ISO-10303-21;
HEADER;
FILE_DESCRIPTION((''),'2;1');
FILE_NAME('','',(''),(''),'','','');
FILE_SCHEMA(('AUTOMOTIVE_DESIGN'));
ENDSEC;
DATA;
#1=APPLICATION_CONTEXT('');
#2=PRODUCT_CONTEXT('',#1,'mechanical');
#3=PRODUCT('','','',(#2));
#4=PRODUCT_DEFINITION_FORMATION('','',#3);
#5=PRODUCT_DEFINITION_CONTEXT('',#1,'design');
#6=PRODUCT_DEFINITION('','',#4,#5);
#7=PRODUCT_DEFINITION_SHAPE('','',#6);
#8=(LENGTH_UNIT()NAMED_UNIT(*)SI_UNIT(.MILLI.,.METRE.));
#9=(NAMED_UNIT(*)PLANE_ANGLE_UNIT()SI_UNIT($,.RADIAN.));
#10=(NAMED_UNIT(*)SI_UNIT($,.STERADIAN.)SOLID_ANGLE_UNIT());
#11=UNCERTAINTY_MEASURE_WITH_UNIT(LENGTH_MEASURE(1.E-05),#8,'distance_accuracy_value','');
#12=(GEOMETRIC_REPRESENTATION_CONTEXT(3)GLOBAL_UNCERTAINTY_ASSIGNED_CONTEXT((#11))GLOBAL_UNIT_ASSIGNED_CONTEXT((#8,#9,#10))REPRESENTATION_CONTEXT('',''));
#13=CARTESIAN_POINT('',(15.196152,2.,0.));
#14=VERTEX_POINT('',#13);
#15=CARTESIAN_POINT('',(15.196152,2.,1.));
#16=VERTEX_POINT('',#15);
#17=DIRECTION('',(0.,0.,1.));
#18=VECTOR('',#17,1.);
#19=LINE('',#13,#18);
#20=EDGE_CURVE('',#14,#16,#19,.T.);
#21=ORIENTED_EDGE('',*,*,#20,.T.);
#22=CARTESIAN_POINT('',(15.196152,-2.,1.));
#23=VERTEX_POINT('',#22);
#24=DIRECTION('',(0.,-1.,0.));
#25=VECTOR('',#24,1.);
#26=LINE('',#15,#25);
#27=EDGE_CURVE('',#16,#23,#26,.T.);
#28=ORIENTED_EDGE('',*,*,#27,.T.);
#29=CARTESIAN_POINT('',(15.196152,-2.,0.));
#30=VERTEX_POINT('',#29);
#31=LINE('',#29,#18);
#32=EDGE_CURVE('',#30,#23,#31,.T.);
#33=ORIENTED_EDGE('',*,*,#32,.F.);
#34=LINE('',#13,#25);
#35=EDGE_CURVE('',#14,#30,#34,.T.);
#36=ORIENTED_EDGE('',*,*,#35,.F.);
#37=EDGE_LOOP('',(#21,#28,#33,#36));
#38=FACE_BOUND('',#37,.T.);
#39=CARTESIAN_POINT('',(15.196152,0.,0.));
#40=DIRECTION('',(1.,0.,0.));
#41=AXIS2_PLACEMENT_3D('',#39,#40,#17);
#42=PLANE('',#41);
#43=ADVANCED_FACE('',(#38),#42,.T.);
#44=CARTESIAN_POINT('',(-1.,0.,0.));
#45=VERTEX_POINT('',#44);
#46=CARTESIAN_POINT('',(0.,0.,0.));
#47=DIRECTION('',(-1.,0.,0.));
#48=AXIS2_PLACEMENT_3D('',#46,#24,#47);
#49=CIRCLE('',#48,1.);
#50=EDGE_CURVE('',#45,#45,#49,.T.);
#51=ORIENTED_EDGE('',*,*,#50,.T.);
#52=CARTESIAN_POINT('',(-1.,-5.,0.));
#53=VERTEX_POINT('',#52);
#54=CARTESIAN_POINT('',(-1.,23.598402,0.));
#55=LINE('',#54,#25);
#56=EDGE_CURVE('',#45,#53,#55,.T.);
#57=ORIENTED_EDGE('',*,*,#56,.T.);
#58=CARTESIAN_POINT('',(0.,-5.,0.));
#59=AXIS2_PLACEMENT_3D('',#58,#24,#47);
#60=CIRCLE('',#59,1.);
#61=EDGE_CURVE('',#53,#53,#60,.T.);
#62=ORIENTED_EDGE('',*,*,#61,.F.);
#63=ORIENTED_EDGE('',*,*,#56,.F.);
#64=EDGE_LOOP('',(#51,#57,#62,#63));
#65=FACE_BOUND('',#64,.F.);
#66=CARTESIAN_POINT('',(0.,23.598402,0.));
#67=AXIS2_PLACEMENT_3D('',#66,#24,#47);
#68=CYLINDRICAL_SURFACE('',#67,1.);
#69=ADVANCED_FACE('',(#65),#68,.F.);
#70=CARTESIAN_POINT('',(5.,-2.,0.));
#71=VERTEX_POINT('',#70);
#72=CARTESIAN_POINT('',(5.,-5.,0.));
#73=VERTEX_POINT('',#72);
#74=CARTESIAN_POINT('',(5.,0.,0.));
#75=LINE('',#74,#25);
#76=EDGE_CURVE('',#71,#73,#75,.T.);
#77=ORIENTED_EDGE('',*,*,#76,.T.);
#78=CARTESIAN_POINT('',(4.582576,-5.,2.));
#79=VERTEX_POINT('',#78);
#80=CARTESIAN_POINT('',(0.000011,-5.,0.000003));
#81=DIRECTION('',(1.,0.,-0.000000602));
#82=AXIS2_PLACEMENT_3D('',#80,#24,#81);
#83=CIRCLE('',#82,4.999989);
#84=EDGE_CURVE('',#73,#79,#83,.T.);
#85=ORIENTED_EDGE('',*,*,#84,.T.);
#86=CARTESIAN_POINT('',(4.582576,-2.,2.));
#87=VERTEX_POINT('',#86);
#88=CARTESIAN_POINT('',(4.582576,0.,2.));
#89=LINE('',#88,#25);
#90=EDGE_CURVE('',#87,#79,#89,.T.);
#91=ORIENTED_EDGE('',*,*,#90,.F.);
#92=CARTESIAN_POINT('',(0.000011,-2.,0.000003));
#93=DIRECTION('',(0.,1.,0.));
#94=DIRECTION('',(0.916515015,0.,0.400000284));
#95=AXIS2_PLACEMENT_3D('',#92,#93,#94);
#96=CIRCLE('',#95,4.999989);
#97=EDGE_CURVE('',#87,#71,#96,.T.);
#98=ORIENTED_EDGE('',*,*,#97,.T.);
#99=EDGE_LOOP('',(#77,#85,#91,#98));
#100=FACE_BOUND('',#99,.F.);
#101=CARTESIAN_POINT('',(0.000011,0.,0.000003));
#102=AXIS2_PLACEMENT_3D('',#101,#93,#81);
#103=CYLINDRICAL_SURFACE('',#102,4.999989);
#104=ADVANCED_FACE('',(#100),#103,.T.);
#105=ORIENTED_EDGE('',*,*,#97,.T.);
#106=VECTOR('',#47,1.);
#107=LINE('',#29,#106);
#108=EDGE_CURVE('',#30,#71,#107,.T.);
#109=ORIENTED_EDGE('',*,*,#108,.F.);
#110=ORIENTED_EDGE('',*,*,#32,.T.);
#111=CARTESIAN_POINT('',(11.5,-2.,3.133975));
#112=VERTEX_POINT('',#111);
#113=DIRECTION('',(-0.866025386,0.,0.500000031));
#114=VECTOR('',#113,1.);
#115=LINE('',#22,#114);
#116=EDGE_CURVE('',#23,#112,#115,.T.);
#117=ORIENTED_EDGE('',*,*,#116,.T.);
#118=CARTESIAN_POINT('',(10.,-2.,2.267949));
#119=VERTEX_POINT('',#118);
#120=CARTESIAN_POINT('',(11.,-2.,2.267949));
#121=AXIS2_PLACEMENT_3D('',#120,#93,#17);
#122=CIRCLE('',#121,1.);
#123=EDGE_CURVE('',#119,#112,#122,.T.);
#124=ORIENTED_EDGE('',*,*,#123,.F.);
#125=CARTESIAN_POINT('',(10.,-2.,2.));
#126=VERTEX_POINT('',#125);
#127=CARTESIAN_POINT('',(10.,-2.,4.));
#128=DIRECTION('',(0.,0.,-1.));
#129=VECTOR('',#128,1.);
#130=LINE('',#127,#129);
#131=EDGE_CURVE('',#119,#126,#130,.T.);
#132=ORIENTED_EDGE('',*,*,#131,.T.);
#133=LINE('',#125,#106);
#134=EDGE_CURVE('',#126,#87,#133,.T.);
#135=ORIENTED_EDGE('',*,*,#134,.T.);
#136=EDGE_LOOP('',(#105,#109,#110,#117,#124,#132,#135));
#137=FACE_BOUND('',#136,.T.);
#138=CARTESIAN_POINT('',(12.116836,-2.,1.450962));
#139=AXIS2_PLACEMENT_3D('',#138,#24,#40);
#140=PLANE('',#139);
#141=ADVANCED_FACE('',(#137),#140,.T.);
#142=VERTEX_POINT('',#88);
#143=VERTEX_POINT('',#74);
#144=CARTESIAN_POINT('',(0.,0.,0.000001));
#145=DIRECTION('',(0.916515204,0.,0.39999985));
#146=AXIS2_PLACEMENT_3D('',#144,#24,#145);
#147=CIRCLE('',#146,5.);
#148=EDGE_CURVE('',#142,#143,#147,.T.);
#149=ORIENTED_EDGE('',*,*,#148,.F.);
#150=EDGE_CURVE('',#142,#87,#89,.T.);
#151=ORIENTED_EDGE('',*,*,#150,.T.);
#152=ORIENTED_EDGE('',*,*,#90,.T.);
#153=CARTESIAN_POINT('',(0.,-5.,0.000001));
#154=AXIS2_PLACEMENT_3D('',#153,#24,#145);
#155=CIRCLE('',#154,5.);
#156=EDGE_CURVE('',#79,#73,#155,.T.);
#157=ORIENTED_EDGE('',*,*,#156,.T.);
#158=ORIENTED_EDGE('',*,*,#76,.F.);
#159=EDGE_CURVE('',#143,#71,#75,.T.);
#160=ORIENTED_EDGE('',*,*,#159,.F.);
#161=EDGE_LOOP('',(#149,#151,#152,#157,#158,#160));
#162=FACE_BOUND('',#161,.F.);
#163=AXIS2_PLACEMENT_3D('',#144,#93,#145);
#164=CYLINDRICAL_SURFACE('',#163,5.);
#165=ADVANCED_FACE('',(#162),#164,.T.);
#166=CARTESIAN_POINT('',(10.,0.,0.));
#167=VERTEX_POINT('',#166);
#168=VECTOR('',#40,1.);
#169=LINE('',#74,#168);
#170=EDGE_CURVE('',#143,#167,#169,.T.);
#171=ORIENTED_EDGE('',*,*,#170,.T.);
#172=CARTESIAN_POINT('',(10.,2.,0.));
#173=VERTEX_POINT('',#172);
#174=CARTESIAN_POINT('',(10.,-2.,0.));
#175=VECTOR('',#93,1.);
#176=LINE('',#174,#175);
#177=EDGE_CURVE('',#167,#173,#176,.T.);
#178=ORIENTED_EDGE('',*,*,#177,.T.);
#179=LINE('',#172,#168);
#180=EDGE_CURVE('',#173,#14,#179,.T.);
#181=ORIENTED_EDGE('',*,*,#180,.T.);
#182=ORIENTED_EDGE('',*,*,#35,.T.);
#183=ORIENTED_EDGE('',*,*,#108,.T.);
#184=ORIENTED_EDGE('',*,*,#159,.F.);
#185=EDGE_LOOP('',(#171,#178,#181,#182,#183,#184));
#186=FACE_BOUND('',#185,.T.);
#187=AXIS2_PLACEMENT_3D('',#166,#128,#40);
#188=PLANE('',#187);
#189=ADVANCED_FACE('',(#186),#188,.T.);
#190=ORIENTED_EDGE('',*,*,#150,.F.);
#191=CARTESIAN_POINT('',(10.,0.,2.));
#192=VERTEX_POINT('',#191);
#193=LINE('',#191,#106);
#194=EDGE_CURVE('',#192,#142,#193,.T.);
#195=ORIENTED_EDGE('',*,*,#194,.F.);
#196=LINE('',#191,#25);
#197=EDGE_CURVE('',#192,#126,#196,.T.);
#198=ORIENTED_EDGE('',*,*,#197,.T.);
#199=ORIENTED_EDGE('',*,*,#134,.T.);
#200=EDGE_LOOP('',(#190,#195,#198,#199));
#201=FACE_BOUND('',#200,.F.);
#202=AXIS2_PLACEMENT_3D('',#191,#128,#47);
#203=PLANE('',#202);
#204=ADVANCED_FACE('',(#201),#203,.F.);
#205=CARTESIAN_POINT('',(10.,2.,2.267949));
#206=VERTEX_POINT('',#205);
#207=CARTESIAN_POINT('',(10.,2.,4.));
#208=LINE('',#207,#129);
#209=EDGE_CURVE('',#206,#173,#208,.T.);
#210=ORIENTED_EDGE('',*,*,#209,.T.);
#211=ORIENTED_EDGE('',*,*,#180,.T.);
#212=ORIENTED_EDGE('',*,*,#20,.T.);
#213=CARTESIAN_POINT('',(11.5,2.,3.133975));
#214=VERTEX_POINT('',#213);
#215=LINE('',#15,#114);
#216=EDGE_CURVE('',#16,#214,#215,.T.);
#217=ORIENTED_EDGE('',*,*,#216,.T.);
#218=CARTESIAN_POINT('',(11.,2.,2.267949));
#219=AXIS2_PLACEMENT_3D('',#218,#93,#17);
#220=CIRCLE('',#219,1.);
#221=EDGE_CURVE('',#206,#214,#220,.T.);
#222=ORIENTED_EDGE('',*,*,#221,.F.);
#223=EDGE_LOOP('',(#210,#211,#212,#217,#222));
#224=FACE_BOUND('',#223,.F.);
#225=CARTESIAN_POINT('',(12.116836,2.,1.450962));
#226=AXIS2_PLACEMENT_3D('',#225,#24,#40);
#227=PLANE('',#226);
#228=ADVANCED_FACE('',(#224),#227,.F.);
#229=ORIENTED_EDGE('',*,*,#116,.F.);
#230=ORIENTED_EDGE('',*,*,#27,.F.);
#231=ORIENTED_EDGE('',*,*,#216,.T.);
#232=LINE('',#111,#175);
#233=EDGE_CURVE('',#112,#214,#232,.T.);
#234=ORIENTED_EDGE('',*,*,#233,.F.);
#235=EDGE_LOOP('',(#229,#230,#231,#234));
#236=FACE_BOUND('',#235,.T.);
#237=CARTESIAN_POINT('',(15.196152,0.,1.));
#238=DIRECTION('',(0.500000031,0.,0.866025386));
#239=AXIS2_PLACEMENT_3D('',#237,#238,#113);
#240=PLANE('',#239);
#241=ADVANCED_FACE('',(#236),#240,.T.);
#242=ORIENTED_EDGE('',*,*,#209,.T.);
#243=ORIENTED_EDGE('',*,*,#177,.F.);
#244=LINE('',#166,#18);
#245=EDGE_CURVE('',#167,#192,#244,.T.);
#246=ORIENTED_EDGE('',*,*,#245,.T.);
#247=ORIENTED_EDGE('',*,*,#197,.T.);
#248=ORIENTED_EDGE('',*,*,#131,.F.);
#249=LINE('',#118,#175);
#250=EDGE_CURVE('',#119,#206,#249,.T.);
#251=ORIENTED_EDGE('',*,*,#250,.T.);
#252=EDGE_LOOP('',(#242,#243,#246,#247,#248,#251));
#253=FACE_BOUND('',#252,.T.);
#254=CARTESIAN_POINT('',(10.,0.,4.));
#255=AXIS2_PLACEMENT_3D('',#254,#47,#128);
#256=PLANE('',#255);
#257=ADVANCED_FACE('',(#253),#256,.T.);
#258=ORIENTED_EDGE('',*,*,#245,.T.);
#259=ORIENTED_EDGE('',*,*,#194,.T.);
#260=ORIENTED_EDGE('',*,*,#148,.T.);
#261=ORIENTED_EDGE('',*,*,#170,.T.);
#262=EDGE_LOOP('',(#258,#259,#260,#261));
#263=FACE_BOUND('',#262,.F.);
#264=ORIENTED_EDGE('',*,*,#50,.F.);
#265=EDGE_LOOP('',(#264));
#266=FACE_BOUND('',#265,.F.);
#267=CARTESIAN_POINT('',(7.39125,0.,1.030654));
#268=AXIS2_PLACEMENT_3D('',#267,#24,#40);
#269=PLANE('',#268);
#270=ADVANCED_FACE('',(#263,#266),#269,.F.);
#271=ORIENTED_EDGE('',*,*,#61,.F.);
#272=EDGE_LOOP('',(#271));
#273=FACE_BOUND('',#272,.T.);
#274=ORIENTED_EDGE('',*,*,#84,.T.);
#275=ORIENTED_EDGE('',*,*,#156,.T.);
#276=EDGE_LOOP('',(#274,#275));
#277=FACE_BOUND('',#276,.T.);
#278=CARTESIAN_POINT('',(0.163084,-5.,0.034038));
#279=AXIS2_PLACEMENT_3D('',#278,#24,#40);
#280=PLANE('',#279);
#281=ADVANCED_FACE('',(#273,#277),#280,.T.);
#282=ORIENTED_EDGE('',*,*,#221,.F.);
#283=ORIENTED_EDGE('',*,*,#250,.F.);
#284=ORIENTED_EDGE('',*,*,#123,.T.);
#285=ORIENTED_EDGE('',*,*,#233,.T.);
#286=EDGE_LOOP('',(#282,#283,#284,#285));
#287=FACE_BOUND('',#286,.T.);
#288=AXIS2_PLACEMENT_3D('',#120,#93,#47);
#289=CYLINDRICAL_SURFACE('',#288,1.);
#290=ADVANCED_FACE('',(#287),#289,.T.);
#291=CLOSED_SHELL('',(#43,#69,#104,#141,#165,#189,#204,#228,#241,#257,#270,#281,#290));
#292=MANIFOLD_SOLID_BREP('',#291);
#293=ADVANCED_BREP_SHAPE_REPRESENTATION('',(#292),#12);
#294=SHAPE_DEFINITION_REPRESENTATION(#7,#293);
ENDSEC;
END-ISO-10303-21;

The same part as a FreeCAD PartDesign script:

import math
import FreeCAD as App
import Part
import Sketcher

V = App.Vector
Q = App.Units.Quantity


def edges_at(feature, points):
    """Names of the edges that pass closest to the given points."""
    edges = feature.Shape.Edges
    near = lambda p: min(range(len(edges)), key=lambda i: edges[i].distToShape(Part.Vertex(*p))[0])
    return sorted({f"Edge{near(p) + 1}" for p in points})

doc = App.newDocument("Part")
body = doc.addObject("PartDesign::Body", "Body")

# Sketch on XZ plane
sketch1 = body.newObject("Sketcher::SketchObject", "Sketch")
sketch1.AttachmentSupport = (doc.getObject("XZ_Plane"), [""])
sketch1.MapMode = "FlatFace"
sketch1.addGeometry([
    Part.ArcOfCircle(Part.Circle(V(0, 0.000001, 0), V(0, 0, 1), 5), math.radians(23.578169), math.radians(359.999993)),
    Part.ArcOfCircle(Part.Circle(V(0.000011, 0.000003, 0), V(0, 0, 1), 4.999989), math.radians(-0.000035), math.radians(23.578196)),
], False)
sketch1.addConstraint([
    Sketcher.Constraint("Tangent", 0, 1, 1, 2),
    Sketcher.Constraint("Coincident", 1, 1, 0, 2),
    Sketcher.Constraint("Coincident", 0, 3, -1, 1),
    Sketcher.Constraint("PointOnObject", 1, 1, -1),
    Sketcher.Constraint("Radius", 0, Q("5 mm")),
    Sketcher.Constraint("DistanceY", -1, 1, 0, 1, Q("2 mm")),
])
pad1 = body.newObject("PartDesign::Pad", "Pad")
pad1.Profile = sketch1
pad1.Length = 5

# Sketch on XZ plane
sketch2 = body.newObject("Sketcher::SketchObject", "Sketch001")
sketch2.AttachmentSupport = (doc.getObject("XZ_Plane"), [""])
sketch2.MapMode = "FlatFace"
sketch2.addGeometry([
    Part.ArcOfCircle(Part.Circle(V(0.000011, 0.000003, 0), V(0, 0, 1), 4.999989), math.radians(-0.000035), math.radians(23.578196)),
    Part.LineSegment(V(5, 0, 0), V(10, 0, 0)),
    Part.LineSegment(V(10, 0, 0), V(10, 2, 0)),
    Part.LineSegment(V(10, 2, 0), V(4.582576, 2, 0)),
], False)
sketch2.addConstraint([
    Sketcher.Constraint("Coincident", 0, 1, 1, 1),
    Sketcher.Constraint("Coincident", 1, 2, 2, 1),
    Sketcher.Constraint("Coincident", 2, 2, 3, 1),
    Sketcher.Constraint("Coincident", 3, 2, 0, 2),
    Sketcher.Constraint("Horizontal", 1),
    Sketcher.Constraint("Vertical", 2),
    Sketcher.Constraint("Horizontal", 3),
    Sketcher.Constraint("PointOnObject", 0, 1, -1),
    Sketcher.Constraint("DistanceX", 1, 1, 1, 2, Q("5 mm")),
    Sketcher.Constraint("DistanceY", 2, 1, 2, 2, Q("2 mm")),
    Sketcher.Constraint("DistanceX", -1, 1, 0, 1, Q("5 mm")),
    Sketcher.Constraint("Radius", 0, Q("4.999989 mm")),
    Sketcher.Constraint("DistanceX", 3, 2, 3, 1, Q("5.417424 mm")),
])
pad2 = body.newObject("PartDesign::Pad", "Pad001")
pad2.Profile = sketch2
pad2.Length = 2

# Sketch on XZ plane
sketch3 = body.newObject("Sketcher::SketchObject", "Sketch002")
sketch3.AttachmentSupport = (doc.getObject("XZ_Plane"), [""])
sketch3.MapMode = "FlatFace"
sketch3.addGeometry([
    Part.LineSegment(V(10, 0, 0), V(15.196152, 0, 0)),
    Part.LineSegment(V(15.196152, 0, 0), V(15.196152, 1, 0)),
    Part.LineSegment(V(15.196152, 1, 0), V(10, 4, 0)),
    Part.LineSegment(V(10, 4, 0), V(10, 0, 0)),
], False)
sketch3.addConstraint([
    Sketcher.Constraint("Coincident", 0, 2, 1, 1),
    Sketcher.Constraint("Coincident", 1, 2, 2, 1),
    Sketcher.Constraint("Coincident", 2, 2, 3, 1),
    Sketcher.Constraint("Coincident", 3, 2, 0, 1),
    Sketcher.Constraint("Horizontal", 0),
    Sketcher.Constraint("Vertical", 1),
    Sketcher.Constraint("Vertical", 3),
    Sketcher.Constraint("PointOnObject", 0, 2, -1),
    Sketcher.Constraint("DistanceY", 1, 1, 1, 2, Q("1 mm")),
    Sketcher.Constraint("DistanceY", 3, 2, 3, 1, Q("4 mm")),
    Sketcher.Constraint("Angle", 2, Q("149.999998 deg")),
    Sketcher.Constraint("DistanceX", -1, 1, 2, 2, Q("10 mm")),
])
pad3 = body.newObject("PartDesign::Pad", "Pad002")
pad3.Profile = sketch3
pad3.Length = 4
pad3.Midplane = True

# Sketch on XZ plane
sketch4 = body.newObject("Sketcher::SketchObject", "Sketch003")
sketch4.AttachmentSupport = (doc.getObject("XZ_Plane"), [""])
sketch4.MapMode = "FlatFace"
sketch4.addGeometry(Part.Circle(V(0, 0, 0), V(0, 0, 1), 1), False)
sketch4.addConstraint([
    Sketcher.Constraint("Coincident", 0, 3, -1, 1),
    Sketcher.Constraint("Diameter", 0, Q("2 mm")),
])
doc.recompute()
hole = body.newObject("PartDesign::Hole", "Hole")
hole.Profile = sketch4
hole.ThreadType = "None"
hole.Diameter = 2
hole.DepthType = "ThroughAll"
hole.Reversed = True
doc.recompute()

fillet = body.newObject("PartDesign::Fillet", "Fillet")
fillet.Base = (hole, edges_at(hole, [(10, 0, 4)]))
fillet.Radius = 1

doc.recompute()
